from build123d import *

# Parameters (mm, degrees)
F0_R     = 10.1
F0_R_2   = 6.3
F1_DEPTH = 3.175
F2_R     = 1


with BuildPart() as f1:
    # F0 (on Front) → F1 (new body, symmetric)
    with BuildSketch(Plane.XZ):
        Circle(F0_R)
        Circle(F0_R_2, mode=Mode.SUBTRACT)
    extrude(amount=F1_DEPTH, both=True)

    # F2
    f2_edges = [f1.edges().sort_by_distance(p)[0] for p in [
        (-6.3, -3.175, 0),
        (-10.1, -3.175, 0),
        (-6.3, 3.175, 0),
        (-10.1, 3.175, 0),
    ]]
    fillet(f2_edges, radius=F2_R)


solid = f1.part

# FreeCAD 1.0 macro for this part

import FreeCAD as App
import Part
import Sketcher
from FreeCAD import Vector


def edges_at(feature, points):
    """Names of the edges that pass closest to the given points."""
    edges = feature.Shape.Edges
    near = lambda p: min(range(len(edges)), key=lambda i: edges[i].distToShape(Part.Vertex(*p))[0])
    return sorted({f"Edge{near(p) + 1}" for p in points})

doc = App.newDocument("Part")
body = doc.addObject("PartDesign::Body", "Body")

sketch1 = body.newObject("Sketcher::SketchObject", "Sketch")
sketch1.AttachmentSupport = (doc.getObject("XZ_Plane"), [""])
sketch1.MapMode = "FlatFace"
sketch1.addGeometry([
    Part.Circle(Vector(0, 0, 0), Vector(0, 0, 1), 10.1),
    Part.Circle(Vector(0, 0, 0), Vector(0, 0, 1), 6.3),
], False)
sketch1.addConstraint([
    Sketcher.Constraint("Coincident", 0, 3, -1, 1),
    Sketcher.Constraint("Coincident", 1, 3, -1, 1),
    Sketcher.Constraint("Diameter", 0, 20.2),
    Sketcher.Constraint("Diameter", 1, 12.6),
])
pad1 = body.newObject("PartDesign::Pad", "Pad")
pad1.Profile = sketch1
pad1.Length = 6.35
pad1.Midplane = True
doc.recompute()

fillet = body.newObject("PartDesign::Fillet", "Fillet")
fillet.Base = (pad1, edges_at(pad1, [
    (-6.3, -3.175, 0),
    (-10.1, -3.175, 0),
    (-6.3, 3.175, 0),
    (-10.1, 3.175, 0),
]))
fillet.Radius = 1

doc.recompute()
